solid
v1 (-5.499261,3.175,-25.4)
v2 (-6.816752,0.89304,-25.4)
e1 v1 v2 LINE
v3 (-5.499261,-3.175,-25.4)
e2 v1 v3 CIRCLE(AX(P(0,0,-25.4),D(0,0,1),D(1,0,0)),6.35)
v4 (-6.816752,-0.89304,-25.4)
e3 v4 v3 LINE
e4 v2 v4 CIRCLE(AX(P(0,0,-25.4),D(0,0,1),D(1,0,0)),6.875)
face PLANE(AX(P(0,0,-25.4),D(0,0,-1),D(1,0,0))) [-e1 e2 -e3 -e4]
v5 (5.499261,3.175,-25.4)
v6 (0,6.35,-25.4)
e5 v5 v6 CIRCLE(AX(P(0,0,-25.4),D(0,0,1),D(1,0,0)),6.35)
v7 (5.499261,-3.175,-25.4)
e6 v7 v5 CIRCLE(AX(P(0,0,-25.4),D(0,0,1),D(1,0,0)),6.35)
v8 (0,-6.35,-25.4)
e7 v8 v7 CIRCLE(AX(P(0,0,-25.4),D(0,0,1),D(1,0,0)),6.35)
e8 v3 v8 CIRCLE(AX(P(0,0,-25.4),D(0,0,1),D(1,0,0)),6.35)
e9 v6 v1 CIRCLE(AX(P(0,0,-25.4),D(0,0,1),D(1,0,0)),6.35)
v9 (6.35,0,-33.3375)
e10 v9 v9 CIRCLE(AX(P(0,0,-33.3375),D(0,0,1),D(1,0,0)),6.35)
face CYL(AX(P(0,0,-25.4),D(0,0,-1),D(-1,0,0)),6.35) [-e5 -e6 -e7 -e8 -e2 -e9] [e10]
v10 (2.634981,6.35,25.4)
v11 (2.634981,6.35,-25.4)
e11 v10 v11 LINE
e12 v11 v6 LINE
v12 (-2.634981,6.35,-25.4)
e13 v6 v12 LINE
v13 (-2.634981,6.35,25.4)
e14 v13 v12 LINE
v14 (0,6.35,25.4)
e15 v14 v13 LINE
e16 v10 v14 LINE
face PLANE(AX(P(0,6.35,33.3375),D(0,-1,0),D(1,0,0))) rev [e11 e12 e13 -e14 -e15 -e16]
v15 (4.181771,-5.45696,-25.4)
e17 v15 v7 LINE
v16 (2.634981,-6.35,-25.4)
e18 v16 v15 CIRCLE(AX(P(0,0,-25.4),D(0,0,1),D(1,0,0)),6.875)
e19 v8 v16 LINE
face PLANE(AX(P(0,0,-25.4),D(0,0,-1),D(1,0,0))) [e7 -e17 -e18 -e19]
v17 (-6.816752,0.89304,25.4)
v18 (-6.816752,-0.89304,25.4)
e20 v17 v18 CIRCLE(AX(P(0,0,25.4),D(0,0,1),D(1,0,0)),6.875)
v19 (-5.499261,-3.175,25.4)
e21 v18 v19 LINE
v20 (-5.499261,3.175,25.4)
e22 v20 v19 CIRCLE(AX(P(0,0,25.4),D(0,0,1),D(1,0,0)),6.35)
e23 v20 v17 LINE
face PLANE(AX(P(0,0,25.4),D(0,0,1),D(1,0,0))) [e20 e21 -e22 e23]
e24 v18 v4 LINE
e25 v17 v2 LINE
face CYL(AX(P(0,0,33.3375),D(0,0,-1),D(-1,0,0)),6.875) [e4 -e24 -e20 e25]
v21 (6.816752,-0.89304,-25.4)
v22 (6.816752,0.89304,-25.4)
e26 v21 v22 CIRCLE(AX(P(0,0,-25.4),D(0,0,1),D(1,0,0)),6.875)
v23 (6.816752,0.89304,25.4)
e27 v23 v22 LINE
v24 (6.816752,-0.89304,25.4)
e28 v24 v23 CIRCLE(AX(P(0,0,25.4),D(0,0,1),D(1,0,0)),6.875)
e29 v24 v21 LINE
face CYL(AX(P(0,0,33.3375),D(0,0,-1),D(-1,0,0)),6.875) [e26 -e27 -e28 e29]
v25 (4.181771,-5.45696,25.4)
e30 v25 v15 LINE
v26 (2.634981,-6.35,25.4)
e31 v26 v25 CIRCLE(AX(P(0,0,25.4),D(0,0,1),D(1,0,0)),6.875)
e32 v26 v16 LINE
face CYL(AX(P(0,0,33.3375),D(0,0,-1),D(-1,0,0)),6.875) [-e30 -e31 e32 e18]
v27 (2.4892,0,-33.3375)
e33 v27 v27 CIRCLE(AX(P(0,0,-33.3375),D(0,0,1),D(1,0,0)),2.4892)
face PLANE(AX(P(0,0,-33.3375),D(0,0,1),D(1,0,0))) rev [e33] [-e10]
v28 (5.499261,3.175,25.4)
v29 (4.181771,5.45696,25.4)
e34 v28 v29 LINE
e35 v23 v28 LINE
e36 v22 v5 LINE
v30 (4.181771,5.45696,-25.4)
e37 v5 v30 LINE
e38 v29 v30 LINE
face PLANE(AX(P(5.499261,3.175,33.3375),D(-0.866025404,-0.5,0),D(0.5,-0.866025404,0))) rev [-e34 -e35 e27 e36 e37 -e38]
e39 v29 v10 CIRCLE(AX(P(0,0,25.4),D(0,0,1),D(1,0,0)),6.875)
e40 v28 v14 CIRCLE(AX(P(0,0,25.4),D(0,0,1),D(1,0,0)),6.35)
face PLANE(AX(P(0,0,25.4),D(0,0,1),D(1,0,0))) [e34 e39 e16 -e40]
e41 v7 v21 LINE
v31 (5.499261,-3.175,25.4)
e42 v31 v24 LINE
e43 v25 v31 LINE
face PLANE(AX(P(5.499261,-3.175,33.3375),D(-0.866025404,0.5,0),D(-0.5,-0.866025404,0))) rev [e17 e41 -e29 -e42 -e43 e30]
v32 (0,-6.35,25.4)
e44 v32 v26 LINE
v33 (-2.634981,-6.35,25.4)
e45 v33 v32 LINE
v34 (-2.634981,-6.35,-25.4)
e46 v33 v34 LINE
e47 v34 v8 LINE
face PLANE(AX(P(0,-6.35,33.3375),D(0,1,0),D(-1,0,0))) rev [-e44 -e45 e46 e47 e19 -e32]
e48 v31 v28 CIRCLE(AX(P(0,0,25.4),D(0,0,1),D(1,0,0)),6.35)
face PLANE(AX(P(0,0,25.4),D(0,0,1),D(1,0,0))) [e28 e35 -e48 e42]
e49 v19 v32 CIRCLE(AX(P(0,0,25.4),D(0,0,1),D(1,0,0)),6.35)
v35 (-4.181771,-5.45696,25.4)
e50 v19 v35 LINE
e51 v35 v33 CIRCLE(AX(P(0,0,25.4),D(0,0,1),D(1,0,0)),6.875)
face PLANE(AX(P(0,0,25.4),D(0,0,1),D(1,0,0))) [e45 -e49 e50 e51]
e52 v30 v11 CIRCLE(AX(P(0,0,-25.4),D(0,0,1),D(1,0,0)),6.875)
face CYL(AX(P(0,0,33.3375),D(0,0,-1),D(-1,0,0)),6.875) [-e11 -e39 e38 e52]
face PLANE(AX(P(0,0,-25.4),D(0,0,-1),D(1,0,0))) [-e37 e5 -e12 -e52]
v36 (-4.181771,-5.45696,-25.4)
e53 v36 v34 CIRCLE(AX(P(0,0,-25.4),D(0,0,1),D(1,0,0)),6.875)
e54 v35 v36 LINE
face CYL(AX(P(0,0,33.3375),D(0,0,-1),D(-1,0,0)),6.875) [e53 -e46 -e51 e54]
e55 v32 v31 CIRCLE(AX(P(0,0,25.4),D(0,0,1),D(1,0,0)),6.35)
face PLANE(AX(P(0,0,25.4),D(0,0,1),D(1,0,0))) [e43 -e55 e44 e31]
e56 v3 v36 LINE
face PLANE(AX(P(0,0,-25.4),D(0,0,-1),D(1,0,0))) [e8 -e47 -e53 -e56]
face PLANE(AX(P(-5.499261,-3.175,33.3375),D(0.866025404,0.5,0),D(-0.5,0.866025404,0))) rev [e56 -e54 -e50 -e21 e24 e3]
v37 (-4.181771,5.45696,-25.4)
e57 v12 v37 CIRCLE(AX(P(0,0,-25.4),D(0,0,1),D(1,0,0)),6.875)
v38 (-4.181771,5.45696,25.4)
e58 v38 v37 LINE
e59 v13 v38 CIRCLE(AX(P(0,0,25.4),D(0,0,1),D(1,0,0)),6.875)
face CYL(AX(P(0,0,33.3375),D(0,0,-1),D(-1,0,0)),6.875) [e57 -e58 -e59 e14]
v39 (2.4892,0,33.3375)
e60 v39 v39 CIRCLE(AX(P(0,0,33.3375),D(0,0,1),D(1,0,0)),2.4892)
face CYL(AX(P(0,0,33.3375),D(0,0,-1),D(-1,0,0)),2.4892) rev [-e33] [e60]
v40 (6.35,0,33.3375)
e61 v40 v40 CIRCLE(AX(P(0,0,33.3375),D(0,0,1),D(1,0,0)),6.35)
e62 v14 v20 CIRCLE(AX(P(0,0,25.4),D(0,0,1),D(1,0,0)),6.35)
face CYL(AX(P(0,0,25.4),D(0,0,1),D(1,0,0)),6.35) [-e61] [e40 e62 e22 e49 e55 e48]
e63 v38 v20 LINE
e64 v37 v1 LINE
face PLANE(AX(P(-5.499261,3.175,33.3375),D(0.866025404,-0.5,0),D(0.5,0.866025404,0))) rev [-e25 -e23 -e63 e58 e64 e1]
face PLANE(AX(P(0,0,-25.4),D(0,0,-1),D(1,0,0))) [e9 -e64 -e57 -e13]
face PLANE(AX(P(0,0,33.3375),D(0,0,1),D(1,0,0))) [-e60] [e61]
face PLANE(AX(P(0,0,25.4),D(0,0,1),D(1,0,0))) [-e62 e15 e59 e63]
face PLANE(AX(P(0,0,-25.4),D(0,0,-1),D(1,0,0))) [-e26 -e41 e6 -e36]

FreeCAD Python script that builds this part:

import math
import FreeCAD as App
import Part
import Sketcher
from FreeCAD import Vector
Q = App.Units.Quantity

doc = App.newDocument("Part")
body = doc.addObject("PartDesign::Body", "Body")

# Sketch on XY plane
sketch1 = body.newObject("Sketcher::SketchObject", "Sketch")
sketch1.AttachmentSupport = (doc.getObject("XY_Plane"), [""])
sketch1.MapMode = "FlatFace"
sketch1.addGeometry(Part.ArcOfCircle(Part.Circle(Vector(0, 0, 0), Vector(0, 0, 1), 6.9), math.radians(112.54), math.radians(127.46)), False)
sketch1.addGeometry(Part.LineSegment(Vector(-4.2, 5.5, 0), Vector(-6.8, 0.9, 0)), False)
sketch1.addGeometry(Part.ArcOfCircle(Part.Circle(Vector(0, 0, 0), Vector(0, 0, 1), 6.9), math.radians(172.54), math.radians(187.46)), False)
sketch1.addGeometry(Part.LineSegment(Vector(-6.8, -0.9, 0), Vector(-4.2, -5.5, 0)), False)
sketch1.addGeometry(Part.ArcOfCircle(Part.Circle(Vector(0, 0, 0), Vector(0, 0, 1), 6.9), math.radians(-127.46), math.radians(-112.54)), False)
sketch1.addGeometry(Part.LineSegment(Vector(-2.6, -6.3, 0), Vector(2.6, -6.3, 0)), False)
sketch1.addGeometry(Part.ArcOfCircle(Part.Circle(Vector(0, 0, 0), Vector(0, 0, 1), 6.9), math.radians(-67.46), math.radians(-52.54)), False)
sketch1.addGeometry(Part.LineSegment(Vector(4.2, -5.5, 0), Vector(6.8, -0.9, 0)), False)
sketch1.addGeometry(Part.ArcOfCircle(Part.Circle(Vector(0, 0, 0), Vector(0, 0, 1), 6.9), math.radians(-7.46), math.radians(0)), False)
sketch1.addGeometry(Part.ArcOfCircle(Part.Circle(Vector(0, 0, 0), Vector(0, 0, 1), 6.9), math.radians(0), math.radians(7.46)), False)
sketch1.addGeometry(Part.LineSegment(Vector(6.8, 0.9, 0), Vector(4.2, 5.5, 0)), False)
sketch1.addGeometry(Part.ArcOfCircle(Part.Circle(Vector(0, 0, 0), Vector(0, 0, 1), 6.9), math.radians(52.54), math.radians(67.46)), False)
sketch1.addGeometry(Part.LineSegment(Vector(2.6, 6.3, 0), Vector(-2.6, 6.3, 0)), False)
sketch1.addGeometry(Part.Circle(Vector(0, 0, 0), Vector(0, 0, 1), 2.5), False)
sketch1.addConstraint(Sketcher.Constraint("Coincident", 0, 2, 1, 1))
sketch1.addConstraint(Sketcher.Constraint("Coincident", 1, 2, 2, 1))
sketch1.addConstraint(Sketcher.Constraint("Coincident", 2, 2, 3, 1))
sketch1.addConstraint(Sketcher.Constraint("Coincident", 3, 2, 4, 1))
sketch1.addConstraint(Sketcher.Constraint("Coincident", 4, 2, 5, 1))
sketch1.addConstraint(Sketcher.Constraint("Coincident", 5, 2, 6, 1))
sketch1.addConstraint(Sketcher.Constraint("Coincident", 6, 2, 7, 1))
sketch1.addConstraint(Sketcher.Constraint("Coincident", 7, 2, 8, 1))
sketch1.addConstraint(Sketcher.Constraint("Tangent", 8, 2, 9, 1))
sketch1.addConstraint(Sketcher.Constraint("Coincident", 9, 2, 10, 1))
sketch1.addConstraint(Sketcher.Constraint("Coincident", 10, 2, 11, 1))
sketch1.addConstraint(Sketcher.Constraint("Coincident", 11, 2, 12, 1))
sketch1.addConstraint(Sketcher.Constraint("Coincident", 12, 2, 0, 1))
sketch1.addConstraint(Sketcher.Constraint("Horizontal", 5))
sketch1.addConstraint(Sketcher.Constraint("Horizontal", 12))
sketch1.addConstraint(Sketcher.Constraint("Coincident", 0, 3, -1, 1))
sketch1.addConstraint(Sketcher.Constraint("Coincident", 2, 3, -1, 1))
sketch1.addConstraint(Sketcher.Constraint("Coincident", 4, 3, -1, 1))
sketch1.addConstraint(Sketcher.Constraint("Coincident", 6, 3, -1, 1))
sketch1.addConstraint(Sketcher.Constraint("Coincident", 8, 3, -1, 1))
sketch1.addConstraint(Sketcher.Constraint("Coincident", 11, 3, -1, 1))
sketch1.addConstraint(Sketcher.Constraint("Coincident", 13, 3, -1, 1))
sketch1.addConstraint(Sketcher.Constraint("Equal", 0, 2))
sketch1.addConstraint(Sketcher.Constraint("Equal", 2, 4))
sketch1.addConstraint(Sketcher.Constraint("Equal", 4, 6))
sketch1.addConstraint(Sketcher.Constraint("Equal", 6, 8))
sketch1.addConstraint(Sketcher.Constraint("Equal", 8, 9))
sketch1.addConstraint(Sketcher.Constraint("Equal", 9, 11))
sketch1.addConstraint(Sketcher.Constraint("PointOnObject", 8, 2, -1))
sketch1.addConstraint(Sketcher.Constraint("Parallel", 1, 7))
sketch1.addConstraint(Sketcher.Constraint("Parallel", 3, 10))
sketch1.addConstraint(Sketcher.Constraint("Horizontal", 3, 2, 6, 2))
sketch1.addConstraint(Sketcher.Constraint("Horizontal", 2, 2, 7, 2))
sketch1.addConstraint(Sketcher.Constraint("Horizontal", 1, 2, 9, 2))
sketch1.addConstraint(Sketcher.Constraint("Vertical", 1, 2, 2, 2))
sketch1.addConstraint(Sketcher.Constraint("Vertical", 5, 2, 11, 2))
sketch1.addConstraint(Sketcher.Constraint("Diameter", 13, Q("0.196 in")))
sketch1.addConstraint(Sketcher.Constraint("Angle", 1, Q("-120 deg")))
sketch1.addConstraint(Sketcher.Constraint("DistanceY", 4, 2, -1, 1, Q("0.25 in")))
sketch1.addConstraint(Sketcher.Constraint("Radius", 0, 6.875))
sketch1.addConstraint(Sketcher.Constraint("Distance", 1, 5.269962))
pad1 = body.newObject("PartDesign::Pad", "Pad")
pad1.Profile = sketch1
pad1.Length = Q("2.625 in")
pad1.Midplane = True

# Sketch on XY plane
sketch2 = body.newObject("Sketcher::SketchObject", "Sketch001")
sketch2.AttachmentSupport = (doc.getObject("XY_Plane"), [""])
sketch2.MapMode = "FlatFace"
sketch2.AttachmentOffset = App.Placement(Vector(0, 0, 1.3125 * 25.4), App.Rotation())
sketch2.addGeometry(Part.ArcOfCircle(Part.Circle(Vector(0, 0, 0), Vector(0, 0, 1), 6.4), math.radians(90), math.radians(150)), False)
sketch2.addGeometry(Part.LineSegment(Vector(0, 6.3, 0), Vector(-2.6, 6.3, 0)), False)
sketch2.addGeometry(Part.ArcOfCircle(Part.Circle(Vector(0, 0, 0), Vector(0, 0, 1), 6.9), math.radians(112.54), math.radians(127.46)), False)
sketch2.addGeometry(Part.LineSegment(Vector(-4.2, 5.5, 0), Vector(-5.5, 3.2, 0)), False)
sketch2.addGeometry(Part.ArcOfCircle(Part.Circle(Vector(0, 0, 0), Vector(0, 0, 1), 6.4), math.radians(30), math.radians(90)), False)
sketch2.addGeometry(Part.LineSegment(Vector(5.5, 3.2, 0), Vector(4.2, 5.5, 0)), False)
sketch2.addGeometry(Part.ArcOfCircle(Part.Circle(Vector(0, 0, 0), Vector(0, 0, 1), 6.9), math.radians(52.54), math.radians(67.46)), False)
sketch2.addGeometry(Part.LineSegment(Vector(2.6, 6.3, 0), Vector(0, 6.3, 0)), False)
sketch2.addGeometry(Part.ArcOfCircle(Part.Circle(Vector(0, 0, 0), Vector(0, 0, 1), 6.4), math.radians(0), math.radians(30)), False)
sketch2.addGeometry(Part.ArcOfCircle(Part.Circle(Vector(0, 0, 0), Vector(0, 0, 1), 6.4), math.radians(-30), math.radians(0)), False)
sketch2.addGeometry(Part.LineSegment(Vector(5.5, -3.2, 0), Vector(6.8, -0.9, 0)), False)
sketch2.addGeometry(Part.ArcOfCircle(Part.Circle(Vector(0, 0, 0), Vector(0, 0, 1), 6.9), math.radians(-7.46), math.radians(7.46)), False)
sketch2.addGeometry(Part.LineSegment(Vector(6.8, 0.9, 0), Vector(5.5, 3.2, 0)), False)
sketch2.addGeometry(Part.LineSegment(Vector(4.2, -5.5, 0), Vector(5.5, -3.2, 0)), False)
sketch2.addGeometry(Part.ArcOfCircle(Part.Circle(Vector(0, 0, 0), Vector(0, 0, 1), 6.3), math.radians(-90), math.radians(-30)), False)
sketch2.addGeometry(Part.LineSegment(Vector(0, -6.3, 0), Vector(2.6, -6.3, 0)), False)
sketch2.addGeometry(Part.ArcOfCircle(Part.Circle(Vector(0, 0, 0), Vector(0, 0, 1), 6.9), math.radians(-67.46), math.radians(-52.54)), False)
sketch2.addGeometry(Part.LineSegment(Vector(-2.6, -6.3, 0), Vector(0, -6.3, 0)), False)
sketch2.addGeometry(Part.ArcOfCircle(Part.Circle(Vector(0, 0, 0), Vector(0, 0, 1), 6.3), math.radians(-150), math.radians(-90)), False)
sketch2.addGeometry(Part.LineSegment(Vector(-5.5, -3.2, 0), Vector(-4.2, -5.5, 0)), False)
sketch2.addGeometry(Part.ArcOfCircle(Part.Circle(Vector(0, 0, 0), Vector(0, 0, 1), 6.9), math.radians(-127.46), math.radians(-112.54)), False)
sketch2.addGeometry(Part.ArcOfCircle(Part.Circle(Vector(0, 0, 0), Vector(0, 0, 1), 6.3), math.radians(150), math.radians(210)), False)
sketch2.addGeometry(Part.LineSegment(Vector(-5.5, 3.2, 0), Vector(-6.8, 0.9, 0)), False)
sketch2.addGeometry(Part.ArcOfCircle(Part.Circle(Vector(0, 0, 0), Vector(0, 0, 1), 6.9), math.radians(172.54), math.radians(187.46)), False)
sketch2.addGeometry(Part.LineSegment(Vector(-6.8, -0.9, 0), Vector(-5.5, -3.2, 0)), False)
sketch2.addConstraint(Sketcher.Constraint("Tangent", 0, 1, 1, 1))
sketch2.addConstraint(Sketcher.Constraint("Coincident", 1, 2, 2, 1))
sketch2.addConstraint(Sketcher.Constraint("Coincident", 2, 2, 3, 1))
sketch2.addConstraint(Sketcher.Constraint("Tangent", 3, 2, 0, 2))
sketch2.addConstraint(Sketcher.Constraint("Tangent", 4, 1, 5, 1))
sketch2.addConstraint(Sketcher.Constraint("Coincident", 5, 2, 6, 1))
sketch2.addConstraint(Sketcher.Constraint("Coincident", 6, 2, 7, 1))
sketch2.addConstraint(Sketcher.Constraint("Tangent", 7, 2, 4, 2))
sketch2.addConstraint(Sketcher.Constraint("Tangent", 8, 1, 9, 2))
sketch2.addConstraint(Sketcher.Constraint("Tangent", 9, 1, 10, 1))
sketch2.addConstraint(Sketcher.Constraint("Coincident", 10, 2, 11, 1))
sketch2.addConstraint(Sketcher.Constraint("Coincident", 11, 2, 12, 1))
sketch2.addConstraint(Sketcher.Constraint("Tangent", 12, 2, 8, 2))
sketch2.addConstraint(Sketcher.Constraint("Tangent", 13, 2, 14, 2))
sketch2.addConstraint(Sketcher.Constraint("Tangent", 14, 1, 15, 1))
sketch2.addConstraint(Sketcher.Constraint("Coincident", 15, 2, 16, 1))
sketch2.addConstraint(Sketcher.Constraint("Coincident", 16, 2, 13, 1))
sketch2.addConstraint(Sketcher.Constraint("Tangent", 17, 2, 18, 2))
sketch2.addConstraint(Sketcher.Constraint("Tangent", 18, 1, 19, 1))
sketch2.addConstraint(Sketcher.Constraint("Coincident", 19, 2, 20, 1))
sketch2.addConstraint(Sketcher.Constraint("Coincident", 20, 2, 17, 1))
sketch2.addConstraint(Sketcher.Constraint("Tangent", 21, 1, 22, 1))
sketch2.addConstraint(Sketcher.Constraint("Coincident", 22, 2, 23, 1))
sketch2.addConstraint(Sketcher.Constraint("Coincident", 23, 2, 24, 1))
sketch2.addConstraint(Sketcher.Constraint("Tangent", 24, 2, 21, 2))
sketch2.addConstraint(Sketcher.Constraint("Horizontal", 1))
sketch2.addConstraint(Sketcher.Constraint("Horizontal", 7))
sketch2.addConstraint(Sketcher.Constraint("Horizontal", 15))
sketch2.addConstraint(Sketcher.Constraint("Horizontal", 17))
sketch2.addConstraint(Sketcher.Constraint("Coincident", 0, 3, -1, 1))
sketch2.addConstraint(Sketcher.Constraint("Coincident", 2, 3, -1, 1))
sketch2.addConstraint(Sketcher.Constraint("Coincident", 4, 3, -1, 1))
sketch2.addConstraint(Sketcher.Constraint("Coincident", 6, 3, -1, 1))
sketch2.addConstraint(Sketcher.Constraint("Coincident", 8, 3, -1, 1))
sketch2.addConstraint(Sketcher.Constraint("Coincident", 11, 3, -1, 1))
sketch2.addConstraint(Sketcher.Constraint("Coincident", 14, 3, -1, 1))
sketch2.addConstraint(Sketcher.Constraint("Coincident", 16, 3, -1, 1))
sketch2.addConstraint(Sketcher.Constraint("Coincident", 18, 3, -1, 1))
sketch2.addConstraint(Sketcher.Constraint("Coincident", 20, 3, -1, 1))
sketch2.addConstraint(Sketcher.Constraint("Coincident", 21, 3, -1, 1))
sketch2.addConstraint(Sketcher.Constraint("Coincident", 23, 3, -1, 1))
sketch2.addConstraint(Sketcher.Constraint("Coincident", 12, 2, 4, 1))
sketch2.addConstraint(Sketcher.Constraint("Coincident", 13, 2, 9, 1))
sketch2.addConstraint(Sketcher.Constraint("Coincident", 21, 1, 3, 2))
sketch2.addConstraint(Sketcher.Constraint("Coincident", 24, 2, 18, 1))
sketch2.addConstraint(Sketcher.Constraint("Equal", 0, 4))
sketch2.addConstraint(Sketcher.Constraint("Equal", 2, 6))
sketch2.addConstraint(Sketcher.Constraint("Equal", 8, 9))
sketch2.addConstraint(Sketcher.Constraint("Equal", 6, 11))
sketch2.addConstraint(Sketcher.Constraint("Equal", 11, 16))
sketch2.addConstraint(Sketcher.Constraint("Equal", 16, 20))
sketch2.addConstraint(Sketcher.Constraint("Equal", 20, 23))
sketch2.addConstraint(Sketcher.Constraint("PointOnObject", 8, 1, -1))
sketch2.addConstraint(Sketcher.Constraint("Parallel", 3, 10))
sketch2.addConstraint(Sketcher.Constraint("Parallel", 12, 19))
sketch2.addConstraint(Sketcher.Constraint("Horizontal", 3, 2, 4, 1))
sketch2.addConstraint(Sketcher.Constraint("Radius", 0, Q("0.25 in")))
sketch2.addConstraint(Sketcher.Constraint("Angle", 3, Q("-120 deg")))
sketch2.addConstraint(Sketcher.Constraint("Radius", 2, 6.875))
pocket1 = body.newObject("PartDesign::Pocket", "Pocket")
pocket1.Profile = sketch2
pocket1.Length = Q("0.3125 in")
doc.recompute()

mirrored = body.newObject("PartDesign::Mirrored", "Mirrored")
mirrored.Originals = [pocket1]
mirrored.MirrorPlane = (doc.getObject("XY_Plane"), [""])
body.Tip = mirrored

doc.recompute()
